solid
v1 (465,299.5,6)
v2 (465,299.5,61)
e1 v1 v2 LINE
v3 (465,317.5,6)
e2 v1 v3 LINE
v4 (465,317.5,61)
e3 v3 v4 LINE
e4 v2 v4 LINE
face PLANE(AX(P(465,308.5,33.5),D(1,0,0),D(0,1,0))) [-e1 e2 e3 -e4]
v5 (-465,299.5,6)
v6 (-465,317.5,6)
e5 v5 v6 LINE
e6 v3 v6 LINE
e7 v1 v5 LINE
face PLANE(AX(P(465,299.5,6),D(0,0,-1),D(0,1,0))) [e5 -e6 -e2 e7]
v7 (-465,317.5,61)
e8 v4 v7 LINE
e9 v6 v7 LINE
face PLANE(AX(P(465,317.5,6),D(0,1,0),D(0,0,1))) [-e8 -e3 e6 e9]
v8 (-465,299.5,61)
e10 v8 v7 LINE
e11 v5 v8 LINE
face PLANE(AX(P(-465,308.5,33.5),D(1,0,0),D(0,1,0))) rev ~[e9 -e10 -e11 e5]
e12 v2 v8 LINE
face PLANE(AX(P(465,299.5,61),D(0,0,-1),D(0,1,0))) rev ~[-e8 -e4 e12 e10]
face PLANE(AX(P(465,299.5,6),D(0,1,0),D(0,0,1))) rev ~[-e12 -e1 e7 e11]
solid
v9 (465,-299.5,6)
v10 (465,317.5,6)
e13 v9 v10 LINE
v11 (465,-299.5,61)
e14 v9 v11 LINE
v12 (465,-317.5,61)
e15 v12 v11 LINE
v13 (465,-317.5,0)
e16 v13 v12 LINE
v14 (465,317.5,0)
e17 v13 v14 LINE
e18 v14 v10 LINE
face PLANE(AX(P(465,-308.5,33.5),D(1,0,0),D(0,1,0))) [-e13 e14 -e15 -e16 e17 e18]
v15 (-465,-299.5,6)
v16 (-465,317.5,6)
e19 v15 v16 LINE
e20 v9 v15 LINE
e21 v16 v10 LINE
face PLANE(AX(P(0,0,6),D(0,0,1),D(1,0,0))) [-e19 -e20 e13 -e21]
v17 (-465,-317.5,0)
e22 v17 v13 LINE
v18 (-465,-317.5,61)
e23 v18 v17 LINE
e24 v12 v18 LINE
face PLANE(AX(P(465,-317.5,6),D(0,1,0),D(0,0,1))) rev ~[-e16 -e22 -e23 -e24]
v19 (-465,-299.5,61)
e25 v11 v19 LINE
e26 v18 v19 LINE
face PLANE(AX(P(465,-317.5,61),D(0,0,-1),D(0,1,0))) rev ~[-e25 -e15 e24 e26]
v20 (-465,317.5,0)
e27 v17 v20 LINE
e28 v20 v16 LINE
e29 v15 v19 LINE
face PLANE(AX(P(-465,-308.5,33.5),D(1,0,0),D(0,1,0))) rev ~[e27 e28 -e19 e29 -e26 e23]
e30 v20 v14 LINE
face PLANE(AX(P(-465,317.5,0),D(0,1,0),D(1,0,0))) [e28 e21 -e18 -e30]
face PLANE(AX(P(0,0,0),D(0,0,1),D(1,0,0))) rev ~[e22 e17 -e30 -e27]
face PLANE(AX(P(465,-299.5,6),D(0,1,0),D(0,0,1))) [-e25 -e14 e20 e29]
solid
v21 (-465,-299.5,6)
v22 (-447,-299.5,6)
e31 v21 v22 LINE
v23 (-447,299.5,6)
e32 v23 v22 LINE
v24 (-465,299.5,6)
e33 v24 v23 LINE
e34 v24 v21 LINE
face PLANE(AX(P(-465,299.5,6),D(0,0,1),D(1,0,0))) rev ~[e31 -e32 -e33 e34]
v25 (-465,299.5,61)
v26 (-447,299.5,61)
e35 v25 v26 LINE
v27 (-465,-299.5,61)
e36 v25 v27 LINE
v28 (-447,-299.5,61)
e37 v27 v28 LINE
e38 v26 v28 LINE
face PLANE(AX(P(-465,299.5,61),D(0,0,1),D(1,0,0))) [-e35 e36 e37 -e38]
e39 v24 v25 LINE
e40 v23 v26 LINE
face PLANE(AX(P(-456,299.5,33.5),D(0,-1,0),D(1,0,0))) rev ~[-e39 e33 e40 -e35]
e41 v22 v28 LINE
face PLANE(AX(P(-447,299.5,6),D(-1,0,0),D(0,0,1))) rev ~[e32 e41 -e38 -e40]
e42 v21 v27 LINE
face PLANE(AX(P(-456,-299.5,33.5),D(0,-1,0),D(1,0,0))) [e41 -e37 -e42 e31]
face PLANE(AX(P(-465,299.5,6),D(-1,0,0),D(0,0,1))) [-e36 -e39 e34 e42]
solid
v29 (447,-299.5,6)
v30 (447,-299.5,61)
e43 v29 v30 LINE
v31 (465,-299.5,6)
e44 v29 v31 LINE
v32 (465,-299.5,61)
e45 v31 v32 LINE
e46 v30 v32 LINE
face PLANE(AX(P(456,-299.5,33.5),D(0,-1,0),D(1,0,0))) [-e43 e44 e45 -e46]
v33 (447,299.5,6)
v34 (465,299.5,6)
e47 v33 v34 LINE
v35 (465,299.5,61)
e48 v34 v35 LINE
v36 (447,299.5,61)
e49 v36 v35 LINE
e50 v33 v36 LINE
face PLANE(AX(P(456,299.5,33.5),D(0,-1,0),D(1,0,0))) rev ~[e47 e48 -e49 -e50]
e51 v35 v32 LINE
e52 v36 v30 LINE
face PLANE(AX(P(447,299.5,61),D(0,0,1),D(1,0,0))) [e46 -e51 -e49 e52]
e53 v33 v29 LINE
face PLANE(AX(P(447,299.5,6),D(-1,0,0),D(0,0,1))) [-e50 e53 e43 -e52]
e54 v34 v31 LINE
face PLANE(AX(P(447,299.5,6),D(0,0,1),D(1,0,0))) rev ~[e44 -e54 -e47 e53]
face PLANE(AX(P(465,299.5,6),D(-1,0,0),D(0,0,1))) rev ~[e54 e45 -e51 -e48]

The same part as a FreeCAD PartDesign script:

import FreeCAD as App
import Part
import Sketcher
Q = App.Units.Quantity

doc = App.newDocument("Part")
body = doc.addObject("PartDesign::Body", "Body")

# Sketch on XY plane
sketch1 = doc.addObject("Sketcher::SketchObject", "Sketch")
body.addObject(sketch1)
sketch1.AttachmentSupport = (doc.XY_Plane, [""])
sketch1.MapMode = "FlatFace"
sketch1.addGeometry([
    Part.LineSegment(App.Vector(-465, 318, 0), App.Vector(-465, -318, 0)),
    Part.LineSegment(App.Vector(-465, -318, 0), App.Vector(465, -318, 0)),
    Part.LineSegment(App.Vector(465, -318, 0), App.Vector(465, 318, 0)),
    Part.LineSegment(App.Vector(465, 318, 0), App.Vector(-465, 318, 0)),
], False)
sketch1.addConstraint([
    Sketcher.Constraint("Coincident", 0, 2, 1, 1),
    Sketcher.Constraint("Coincident", 1, 2, 2, 1),
    Sketcher.Constraint("Coincident", 2, 2, 3, 1),
    Sketcher.Constraint("Coincident", 3, 2, 0, 1),
    Sketcher.Constraint("Vertical", 0),
    Sketcher.Constraint("Horizontal", 1),
    Sketcher.Constraint("Vertical", 2),
    Sketcher.Constraint("Horizontal", 3),
    Sketcher.Constraint("Symmetric", 0, 2, 2, 2, -1, 1),
    Sketcher.Constraint("DistanceX", 1, 1, 1, 2, Q("930 mm")),
    Sketcher.Constraint("DistanceY", 0, 2, 0, 1, Q("635 mm")),
])
pad1 = doc.addObject("PartDesign::Pad", "Pad")
body.addObject(pad1)
pad1.Profile = sketch1
pad1.Length = 6

# Sketch on YZ plane
sketch2 = doc.addObject("Sketcher::SketchObject", "Sketch001")
body.addObject(sketch2)
sketch2.AttachmentSupport = (doc.YZ_Plane, [""])
sketch2.MapMode = "FlatFace"
sketch2.AttachmentOffset = App.Placement(App.Vector(0, 0, 465), App.Rotation())
sketch2.addGeometry([
    Part.LineSegment(App.Vector(-318, 61, 0), App.Vector(-318, 6, 0)),
    Part.LineSegment(App.Vector(-318, 6, 0), App.Vector(-300, 6, 0)),
    Part.LineSegment(App.Vector(-300, 6, 0), App.Vector(-300, 61, 0)),
    Part.LineSegment(App.Vector(-300, 61, 0), App.Vector(-318, 61, 0)),
], False)
sketch2.addConstraint([
    Sketcher.Constraint("Coincident", 0, 2, 1, 1),
    Sketcher.Constraint("Coincident", 1, 2, 2, 1),
    Sketcher.Constraint("Coincident", 2, 2, 3, 1),
    Sketcher.Constraint("Coincident", 3, 2, 0, 1),
    Sketcher.Constraint("Vertical", 0),
    Sketcher.Constraint("Horizontal", 1),
    Sketcher.Constraint("Vertical", 2),
    Sketcher.Constraint("Horizontal", 3),
    Sketcher.Constraint("DistanceX", 1, 1, 1, 2, Q("18 mm")),
    Sketcher.Constraint("DistanceY", 0, 2, 0, 1, Q("55 mm")),
    Sketcher.Constraint("DistanceY", -1, 1, 0, 2, Q("6 mm")),
    Sketcher.Constraint("DistanceX", 0, 2, -1, 1, Q("317.5 mm")),
])
pad2 = doc.addObject("PartDesign::Pad", "Pad001")
body.addObject(pad2)
pad2.Profile = sketch2
pad2.Length = 930
pad2.Reversed = True
body2 = doc.addObject("PartDesign::Body", "Body001")

# Sketch on YZ plane
sketch3 = doc.addObject("Sketcher::SketchObject", "Sketch002")
body2.addObject(sketch3)
sketch3.AttachmentSupport = (doc.getObject("YZ_Plane001"), [""])
sketch3.MapMode = "FlatFace"
sketch3.AttachmentOffset = App.Placement(App.Vector(0, 0, 465), App.Rotation())
sketch3.addGeometry([
    Part.LineSegment(App.Vector(300, 61, 0), App.Vector(300, 6, 0)),
    Part.LineSegment(App.Vector(300, 6, 0), App.Vector(318, 6, 0)),
    Part.LineSegment(App.Vector(318, 6, 0), App.Vector(318, 61, 0)),
    Part.LineSegment(App.Vector(318, 61, 0), App.Vector(300, 61, 0)),
], False)
sketch3.addConstraint([
    Sketcher.Constraint("Coincident", 0, 2, 1, 1),
    Sketcher.Constraint("Coincident", 1, 2, 2, 1),
    Sketcher.Constraint("Coincident", 2, 2, 3, 1),
    Sketcher.Constraint("Coincident", 3, 2, 0, 1),
    Sketcher.Constraint("Vertical", 0),
    Sketcher.Constraint("Horizontal", 1),
    Sketcher.Constraint("Vertical", 2),
    Sketcher.Constraint("Horizontal", 3),
    Sketcher.Constraint("DistanceX", 1, 1, 1, 2, Q("18 mm")),
    Sketcher.Constraint("DistanceY", 0, 2, 0, 1, Q("55 mm")),
    Sketcher.Constraint("DistanceY", -1, 1, 0, 2, Q("6 mm")),
    Sketcher.Constraint("DistanceX", -1, 1, 0, 2, Q("299.5 mm")),
])
pad3 = doc.addObject("PartDesign::Pad", "Pad002")
body2.addObject(pad3)
pad3.Profile = sketch3
pad3.Length = 930
pad3.Reversed = True
body3 = doc.addObject("PartDesign::Body", "Body002")

# Sketch on XZ plane
sketch4 = doc.addObject("Sketcher::SketchObject", "Sketch003")
body3.addObject(sketch4)
sketch4.AttachmentSupport = (doc.getObject("XZ_Plane002"), [""])
sketch4.MapMode = "FlatFace"
sketch4.AttachmentOffset = App.Placement(App.Vector(0, 0, -299.5), App.Rotation())
sketch4.addGeometry([
    Part.LineSegment(App.Vector(447, 61, 0), App.Vector(447, 6, 0)),
    Part.LineSegment(App.Vector(447, 6, 0), App.Vector(465, 6, 0)),
    Part.LineSegment(App.Vector(465, 6, 0), App.Vector(465, 61, 0)),
    Part.LineSegment(App.Vector(465, 61, 0), App.Vector(447, 61, 0)),
], False)
sketch4.addConstraint([
    Sketcher.Constraint("Coincident", 0, 2, 1, 1),
    Sketcher.Constraint("Coincident", 1, 2, 2, 1),
    Sketcher.Constraint("Coincident", 2, 2, 3, 1),
    Sketcher.Constraint("Coincident", 3, 2, 0, 1),
    Sketcher.Constraint("Vertical", 0),
    Sketcher.Constraint("Horizontal", 1),
    Sketcher.Constraint("Vertical", 2),
    Sketcher.Constraint("Horizontal", 3),
    Sketcher.Constraint("DistanceX", 1, 1, 1, 2, Q("18 mm")),
    Sketcher.Constraint("DistanceY", 0, 2, 0, 1, Q("55 mm")),
    Sketcher.Constraint("DistanceX", -1, 1, 0, 2, Q("447 mm")),
    Sketcher.Constraint("DistanceY", -1, 1, 0, 2, Q("6 mm")),
])
pad4 = doc.addObject("PartDesign::Pad", "Pad003")
body3.addObject(pad4)
pad4.Profile = sketch4
pad4.Length = 599
body4 = doc.addObject("PartDesign::Body", "Body003")

# Sketch on XZ plane
sketch5 = doc.addObject("Sketcher::SketchObject", "Sketch004")
body4.addObject(sketch5)
sketch5.AttachmentSupport = (doc.getObject("XZ_Plane003"), [""])
sketch5.MapMode = "FlatFace"
sketch5.AttachmentOffset = App.Placement(App.Vector(0, 0, -299.5), App.Rotation())
sketch5.addGeometry([
    Part.LineSegment(App.Vector(-465, 61, 0), App.Vector(-465, 6, 0)),
    Part.LineSegment(App.Vector(-465, 6, 0), App.Vector(-447, 6, 0)),
    Part.LineSegment(App.Vector(-447, 6, 0), App.Vector(-447, 61, 0)),
    Part.LineSegment(App.Vector(-447, 61, 0), App.Vector(-465, 61, 0)),
], False)
sketch5.addConstraint([
    Sketcher.Constraint("Coincident", 0, 2, 1, 1),
    Sketcher.Constraint("Coincident", 1, 2, 2, 1),
    Sketcher.Constraint("Coincident", 2, 2, 3, 1),
    Sketcher.Constraint("Coincident", 3, 2, 0, 1),
    Sketcher.Constraint("Vertical", 0),
    Sketcher.Constraint("Horizontal", 1),
    Sketcher.Constraint("Vertical", 2),
    Sketcher.Constraint("Horizontal", 3),
    Sketcher.Constraint("DistanceX", 1, 1, 1, 2, Q("18 mm")),
    Sketcher.Constraint("DistanceY", 0, 2, 0, 1, Q("55 mm")),
    Sketcher.Constraint("DistanceX", 0, 2, -1, 1, Q("465 mm")),
    Sketcher.Constraint("DistanceY", -1, 1, 0, 2, Q("6 mm")),
])
pad5 = doc.addObject("PartDesign::Pad", "Pad004")
body4.addObject(pad5)
pad5.Profile = sketch5
pad5.Length = 599

doc.recompute()
